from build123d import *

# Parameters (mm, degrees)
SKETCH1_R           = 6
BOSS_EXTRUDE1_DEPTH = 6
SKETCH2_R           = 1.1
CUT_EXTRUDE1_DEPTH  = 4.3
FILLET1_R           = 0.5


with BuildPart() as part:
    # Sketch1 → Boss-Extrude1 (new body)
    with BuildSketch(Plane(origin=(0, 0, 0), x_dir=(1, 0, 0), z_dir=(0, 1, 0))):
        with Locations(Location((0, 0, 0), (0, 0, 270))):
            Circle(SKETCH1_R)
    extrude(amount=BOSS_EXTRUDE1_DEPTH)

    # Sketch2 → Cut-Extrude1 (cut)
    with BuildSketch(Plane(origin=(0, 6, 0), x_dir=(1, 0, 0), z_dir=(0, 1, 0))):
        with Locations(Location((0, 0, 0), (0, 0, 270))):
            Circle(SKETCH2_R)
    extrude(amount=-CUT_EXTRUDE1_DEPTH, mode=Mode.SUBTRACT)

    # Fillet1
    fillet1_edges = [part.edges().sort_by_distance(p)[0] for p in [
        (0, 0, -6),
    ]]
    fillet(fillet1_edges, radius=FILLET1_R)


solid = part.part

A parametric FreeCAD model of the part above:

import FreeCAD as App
import Part
import Sketcher
from FreeCAD import Vector
Q = App.Units.Quantity


def edges_at(feature, points):
    """Names of the edges that pass closest to the given points."""
    edges = feature.Shape.Edges
    near = lambda p: min(range(len(edges)), key=lambda i: edges[i].distToShape(Part.Vertex(*p))[0])
    return sorted({f"Edge{near(p) + 1}" for p in points})

doc = App.newDocument("Part")
body = doc.addObject("PartDesign::Body", "Body")

sketch1 = body.newObject("Sketcher::SketchObject", "Sketch")
sketch1.AttachmentSupport = (doc.getObject("XZ_Plane"), [""])
sketch1.MapMode = "FlatFace"
sketch1.addGeometry(Part.Circle(Vector(0, 0, 0), Vector(0, 0, 1), 6), False)
sketch1.addConstraint(Sketcher.Constraint("Coincident", 0, 3, -1, 1))
sketch1.addConstraint(Sketcher.Constraint("Diameter", 0, Q("12 mm")))
pad1 = body.newObject("PartDesign::Pad", "Pad")
pad1.Profile = sketch1
pad1.Length = 6
pad1.Reversed = True

sketch2 = body.newObject("Sketcher::SketchObject", "Sketch001")
sketch2.AttachmentSupport = (doc.getObject("XZ_Plane"), [""])
sketch2.MapMode = "FlatFace"
sketch2.AttachmentOffset = App.Placement(Vector(0, 0, -6), App.Rotation())
sketch2.addGeometry(Part.Circle(Vector(0, 0, 0), Vector(0, 0, 1), 1.1), False)
sketch2.addConstraint(Sketcher.Constraint("Coincident", 0, 3, -1, 1))
sketch2.addConstraint(Sketcher.Constraint("Diameter", 0, Q("2.2 mm")))
pocket1 = body.newObject("PartDesign::Pocket", "Pocket")
pocket1.Profile = sketch2
pocket1.Length = 4.3
pocket1.Reversed = True
doc.recompute()

fillet = body.newObject("PartDesign::Fillet", "Fillet")
fillet.Base = (pocket1, edges_at(pocket1, [(0, 0, -6)]))
fillet.Radius = 0.5

doc.recompute()
